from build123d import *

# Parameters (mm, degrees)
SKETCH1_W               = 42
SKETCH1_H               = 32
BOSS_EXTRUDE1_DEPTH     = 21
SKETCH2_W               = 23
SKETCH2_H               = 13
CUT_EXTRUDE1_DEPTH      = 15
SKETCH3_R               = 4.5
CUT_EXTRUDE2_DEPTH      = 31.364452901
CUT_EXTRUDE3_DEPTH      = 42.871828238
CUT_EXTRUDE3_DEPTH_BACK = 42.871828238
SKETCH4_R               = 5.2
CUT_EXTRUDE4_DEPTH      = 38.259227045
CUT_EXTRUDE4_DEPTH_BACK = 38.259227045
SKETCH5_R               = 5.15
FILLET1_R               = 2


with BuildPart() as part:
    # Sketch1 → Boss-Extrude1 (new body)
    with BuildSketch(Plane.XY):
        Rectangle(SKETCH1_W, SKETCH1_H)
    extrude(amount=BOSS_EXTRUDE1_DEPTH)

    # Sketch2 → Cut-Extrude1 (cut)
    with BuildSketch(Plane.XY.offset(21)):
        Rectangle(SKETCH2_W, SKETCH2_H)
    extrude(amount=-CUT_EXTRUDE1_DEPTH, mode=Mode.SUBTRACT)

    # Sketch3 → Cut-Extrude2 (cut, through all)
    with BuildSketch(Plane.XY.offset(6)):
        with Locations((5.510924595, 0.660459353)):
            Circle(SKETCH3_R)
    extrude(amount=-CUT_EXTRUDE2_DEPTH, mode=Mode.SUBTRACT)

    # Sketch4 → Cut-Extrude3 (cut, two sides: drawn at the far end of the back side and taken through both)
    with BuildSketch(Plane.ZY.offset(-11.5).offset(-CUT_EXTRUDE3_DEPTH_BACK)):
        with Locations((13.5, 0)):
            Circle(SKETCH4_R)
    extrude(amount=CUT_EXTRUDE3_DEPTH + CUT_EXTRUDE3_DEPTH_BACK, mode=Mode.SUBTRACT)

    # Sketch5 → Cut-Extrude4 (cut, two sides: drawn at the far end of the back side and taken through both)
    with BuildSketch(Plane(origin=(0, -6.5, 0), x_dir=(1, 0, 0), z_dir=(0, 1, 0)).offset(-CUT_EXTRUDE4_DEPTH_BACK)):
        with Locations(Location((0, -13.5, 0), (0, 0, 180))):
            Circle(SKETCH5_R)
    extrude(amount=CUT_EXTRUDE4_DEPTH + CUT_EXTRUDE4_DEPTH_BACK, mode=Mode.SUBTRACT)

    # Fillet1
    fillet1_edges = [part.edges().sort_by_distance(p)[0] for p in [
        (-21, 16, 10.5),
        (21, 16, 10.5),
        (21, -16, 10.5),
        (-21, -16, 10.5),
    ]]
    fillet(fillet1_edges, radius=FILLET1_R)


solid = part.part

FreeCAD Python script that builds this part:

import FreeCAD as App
import Part
import Sketcher

V = App.Vector
Q = App.Units.Quantity


def edges_at(feature, points):
    """Names of the edges that pass closest to the given points."""
    edges = feature.Shape.Edges
    near = lambda p: min(range(len(edges)), key=lambda i: edges[i].distToShape(Part.Vertex(*p))[0])
    return sorted({f"Edge{near(p) + 1}" for p in points})


def add_polygon(sketch, points):
    """Adds a closed chain of lines whose ends are joined by coincident constraints."""
    first, n = sketch.GeometryCount, len(points)
    for a, b in zip(points, points[1:] + points[:1]):
        sketch.addGeometry(Part.LineSegment(App.Vector(*a, 0), App.Vector(*b, 0)), False)
    for i in range(n):
        sketch.addConstraint(Sketcher.Constraint("Coincident", first + i, 2, first + (i + 1) % n, 1))

doc = App.newDocument("Part")
body = doc.addObject("PartDesign::Body", "Body")

# Sketch on XY plane
sketch1 = body.newObject("Sketcher::SketchObject", "Sketch")
sketch1.AttachmentSupport = (doc.getObject("XY_Plane"), [""])
sketch1.MapMode = "FlatFace"
add_polygon(sketch1, [(-21, 16), (-21, -16), (21, -16), (21, 16)])  # lines 0-3
sketch1.addConstraint(Sketcher.Constraint("Vertical", 0))
sketch1.addConstraint(Sketcher.Constraint("Horizontal", 1))
sketch1.addConstraint(Sketcher.Constraint("Vertical", 2))
sketch1.addConstraint(Sketcher.Constraint("Horizontal", 3))
sketch1.addConstraint(Sketcher.Constraint("Symmetric", 0, 2, 2, 2, -1, 1))
sketch1.addConstraint(Sketcher.Constraint("DistanceX", 1, 1, 1, 2, Q("42 mm")))
sketch1.addConstraint(Sketcher.Constraint("DistanceY", 0, 2, 0, 1, Q("32 mm")))
pad1 = body.newObject("PartDesign::Pad", "Pad")
pad1.Profile = sketch1
pad1.Length = 21

# Sketch on XY plane
sketch2 = body.newObject("Sketcher::SketchObject", "Sketch001")
sketch2.AttachmentSupport = (doc.getObject("XY_Plane"), [""])
sketch2.MapMode = "FlatFace"
sketch2.AttachmentOffset = App.Placement(V(0, 0, 21), App.Rotation())
add_polygon(sketch2, [(-12, 6), (-12, -6), (12, -6), (12, 6)])  # lines 0-3
sketch2.addConstraint(Sketcher.Constraint("Vertical", 0))
sketch2.addConstraint(Sketcher.Constraint("Horizontal", 1))
sketch2.addConstraint(Sketcher.Constraint("Vertical", 2))
sketch2.addConstraint(Sketcher.Constraint("Horizontal", 3))
sketch2.addConstraint(Sketcher.Constraint("Symmetric", 0, 2, 2, 2, -1, 1))
sketch2.addConstraint(Sketcher.Constraint("DistanceX", 1, 1, 1, 2, Q("23 mm")))
sketch2.addConstraint(Sketcher.Constraint("DistanceY", 0, 2, 0, 1, Q("13 mm")))
pocket1 = body.newObject("PartDesign::Pocket", "Pocket")
pocket1.Profile = sketch2
pocket1.Length = 15

# Sketch on XY plane
sketch3 = body.newObject("Sketcher::SketchObject", "Sketch002")
sketch3.AttachmentSupport = (doc.getObject("XY_Plane"), [""])
sketch3.MapMode = "FlatFace"
sketch3.AttachmentOffset = App.Placement(V(0, 0, 6), App.Rotation())
sketch3.addGeometry(Part.Circle(V(5.5, 0.7, 0), V(0, 0, 1), 4.5), False)
sketch3.addConstraint(Sketcher.Constraint("Diameter", 0, Q("9 mm")))
sketch3.addConstraint(Sketcher.Constraint("DistanceY", -1, 1, 0, 3, Q("0.660459 mm")))
sketch3.addConstraint(Sketcher.Constraint("DistanceX", -1, 1, 0, 3, Q("5.510925 mm")))
pocket2 = body.newObject("PartDesign::Pocket", "Pocket001")
pocket2.Profile = sketch3
pocket2.Type = "ThroughAll"

# Sketch on YZ plane
sketch4 = body.newObject("Sketcher::SketchObject", "Sketch003")
sketch4.AttachmentSupport = (doc.getObject("YZ_Plane"), [""])
sketch4.MapMode = "FlatFace"
sketch4.AttachmentOffset = App.Placement(V(0, 0, 11.5), App.Rotation())
sketch4.addGeometry(Part.Circle(V(0, 14, 0), V(0, 0, 1), 5), False)
sketch4.addConstraint(Sketcher.Constraint("PointOnObject", 0, 3, -2))
sketch4.addConstraint(Sketcher.Constraint("Diameter", 0, Q("10.4 mm")))
sketch4.addConstraint(Sketcher.Constraint("DistanceY", -1, 1, 0, 3, Q("13.5 mm")))
pocket3 = body.newObject("PartDesign::Pocket", "Pocket002")
pocket3.Profile = sketch4
pocket3.Type = "ThroughAll"
pocket3.Midplane = True

# Sketch on XZ plane
sketch5 = body.newObject("Sketcher::SketchObject", "Sketch004")
sketch5.AttachmentSupport = (doc.getObject("XZ_Plane"), [""])
sketch5.MapMode = "FlatFace"
sketch5.AttachmentOffset = App.Placement(V(0, 0, 6.5), App.Rotation())
sketch5.addGeometry(Part.Circle(V(0, 14, 0), V(0, 0, 1), 5), False)
sketch5.addConstraint(Sketcher.Constraint("PointOnObject", 0, 3, -2))
sketch5.addConstraint(Sketcher.Constraint("Diameter", 0, Q("10.3 mm")))
sketch5.addConstraint(Sketcher.Constraint("DistanceY", -1, 1, 0, 3, Q("13.5 mm")))
pocket4 = body.newObject("PartDesign::Pocket", "Pocket003")
pocket4.Profile = sketch5
pocket4.Type = "ThroughAll"
pocket4.Midplane = True
doc.recompute()

fillet = body.newObject("PartDesign::Fillet", "Fillet")
fillet.Base = (pocket4, edges_at(pocket4, [
    (-21, 16, 10.5),
    (21, 16, 10.5),
    (21, -16, 10.5),
    (-21, -16, 10.5),
]))
fillet.Radius = 2

doc.recompute()
